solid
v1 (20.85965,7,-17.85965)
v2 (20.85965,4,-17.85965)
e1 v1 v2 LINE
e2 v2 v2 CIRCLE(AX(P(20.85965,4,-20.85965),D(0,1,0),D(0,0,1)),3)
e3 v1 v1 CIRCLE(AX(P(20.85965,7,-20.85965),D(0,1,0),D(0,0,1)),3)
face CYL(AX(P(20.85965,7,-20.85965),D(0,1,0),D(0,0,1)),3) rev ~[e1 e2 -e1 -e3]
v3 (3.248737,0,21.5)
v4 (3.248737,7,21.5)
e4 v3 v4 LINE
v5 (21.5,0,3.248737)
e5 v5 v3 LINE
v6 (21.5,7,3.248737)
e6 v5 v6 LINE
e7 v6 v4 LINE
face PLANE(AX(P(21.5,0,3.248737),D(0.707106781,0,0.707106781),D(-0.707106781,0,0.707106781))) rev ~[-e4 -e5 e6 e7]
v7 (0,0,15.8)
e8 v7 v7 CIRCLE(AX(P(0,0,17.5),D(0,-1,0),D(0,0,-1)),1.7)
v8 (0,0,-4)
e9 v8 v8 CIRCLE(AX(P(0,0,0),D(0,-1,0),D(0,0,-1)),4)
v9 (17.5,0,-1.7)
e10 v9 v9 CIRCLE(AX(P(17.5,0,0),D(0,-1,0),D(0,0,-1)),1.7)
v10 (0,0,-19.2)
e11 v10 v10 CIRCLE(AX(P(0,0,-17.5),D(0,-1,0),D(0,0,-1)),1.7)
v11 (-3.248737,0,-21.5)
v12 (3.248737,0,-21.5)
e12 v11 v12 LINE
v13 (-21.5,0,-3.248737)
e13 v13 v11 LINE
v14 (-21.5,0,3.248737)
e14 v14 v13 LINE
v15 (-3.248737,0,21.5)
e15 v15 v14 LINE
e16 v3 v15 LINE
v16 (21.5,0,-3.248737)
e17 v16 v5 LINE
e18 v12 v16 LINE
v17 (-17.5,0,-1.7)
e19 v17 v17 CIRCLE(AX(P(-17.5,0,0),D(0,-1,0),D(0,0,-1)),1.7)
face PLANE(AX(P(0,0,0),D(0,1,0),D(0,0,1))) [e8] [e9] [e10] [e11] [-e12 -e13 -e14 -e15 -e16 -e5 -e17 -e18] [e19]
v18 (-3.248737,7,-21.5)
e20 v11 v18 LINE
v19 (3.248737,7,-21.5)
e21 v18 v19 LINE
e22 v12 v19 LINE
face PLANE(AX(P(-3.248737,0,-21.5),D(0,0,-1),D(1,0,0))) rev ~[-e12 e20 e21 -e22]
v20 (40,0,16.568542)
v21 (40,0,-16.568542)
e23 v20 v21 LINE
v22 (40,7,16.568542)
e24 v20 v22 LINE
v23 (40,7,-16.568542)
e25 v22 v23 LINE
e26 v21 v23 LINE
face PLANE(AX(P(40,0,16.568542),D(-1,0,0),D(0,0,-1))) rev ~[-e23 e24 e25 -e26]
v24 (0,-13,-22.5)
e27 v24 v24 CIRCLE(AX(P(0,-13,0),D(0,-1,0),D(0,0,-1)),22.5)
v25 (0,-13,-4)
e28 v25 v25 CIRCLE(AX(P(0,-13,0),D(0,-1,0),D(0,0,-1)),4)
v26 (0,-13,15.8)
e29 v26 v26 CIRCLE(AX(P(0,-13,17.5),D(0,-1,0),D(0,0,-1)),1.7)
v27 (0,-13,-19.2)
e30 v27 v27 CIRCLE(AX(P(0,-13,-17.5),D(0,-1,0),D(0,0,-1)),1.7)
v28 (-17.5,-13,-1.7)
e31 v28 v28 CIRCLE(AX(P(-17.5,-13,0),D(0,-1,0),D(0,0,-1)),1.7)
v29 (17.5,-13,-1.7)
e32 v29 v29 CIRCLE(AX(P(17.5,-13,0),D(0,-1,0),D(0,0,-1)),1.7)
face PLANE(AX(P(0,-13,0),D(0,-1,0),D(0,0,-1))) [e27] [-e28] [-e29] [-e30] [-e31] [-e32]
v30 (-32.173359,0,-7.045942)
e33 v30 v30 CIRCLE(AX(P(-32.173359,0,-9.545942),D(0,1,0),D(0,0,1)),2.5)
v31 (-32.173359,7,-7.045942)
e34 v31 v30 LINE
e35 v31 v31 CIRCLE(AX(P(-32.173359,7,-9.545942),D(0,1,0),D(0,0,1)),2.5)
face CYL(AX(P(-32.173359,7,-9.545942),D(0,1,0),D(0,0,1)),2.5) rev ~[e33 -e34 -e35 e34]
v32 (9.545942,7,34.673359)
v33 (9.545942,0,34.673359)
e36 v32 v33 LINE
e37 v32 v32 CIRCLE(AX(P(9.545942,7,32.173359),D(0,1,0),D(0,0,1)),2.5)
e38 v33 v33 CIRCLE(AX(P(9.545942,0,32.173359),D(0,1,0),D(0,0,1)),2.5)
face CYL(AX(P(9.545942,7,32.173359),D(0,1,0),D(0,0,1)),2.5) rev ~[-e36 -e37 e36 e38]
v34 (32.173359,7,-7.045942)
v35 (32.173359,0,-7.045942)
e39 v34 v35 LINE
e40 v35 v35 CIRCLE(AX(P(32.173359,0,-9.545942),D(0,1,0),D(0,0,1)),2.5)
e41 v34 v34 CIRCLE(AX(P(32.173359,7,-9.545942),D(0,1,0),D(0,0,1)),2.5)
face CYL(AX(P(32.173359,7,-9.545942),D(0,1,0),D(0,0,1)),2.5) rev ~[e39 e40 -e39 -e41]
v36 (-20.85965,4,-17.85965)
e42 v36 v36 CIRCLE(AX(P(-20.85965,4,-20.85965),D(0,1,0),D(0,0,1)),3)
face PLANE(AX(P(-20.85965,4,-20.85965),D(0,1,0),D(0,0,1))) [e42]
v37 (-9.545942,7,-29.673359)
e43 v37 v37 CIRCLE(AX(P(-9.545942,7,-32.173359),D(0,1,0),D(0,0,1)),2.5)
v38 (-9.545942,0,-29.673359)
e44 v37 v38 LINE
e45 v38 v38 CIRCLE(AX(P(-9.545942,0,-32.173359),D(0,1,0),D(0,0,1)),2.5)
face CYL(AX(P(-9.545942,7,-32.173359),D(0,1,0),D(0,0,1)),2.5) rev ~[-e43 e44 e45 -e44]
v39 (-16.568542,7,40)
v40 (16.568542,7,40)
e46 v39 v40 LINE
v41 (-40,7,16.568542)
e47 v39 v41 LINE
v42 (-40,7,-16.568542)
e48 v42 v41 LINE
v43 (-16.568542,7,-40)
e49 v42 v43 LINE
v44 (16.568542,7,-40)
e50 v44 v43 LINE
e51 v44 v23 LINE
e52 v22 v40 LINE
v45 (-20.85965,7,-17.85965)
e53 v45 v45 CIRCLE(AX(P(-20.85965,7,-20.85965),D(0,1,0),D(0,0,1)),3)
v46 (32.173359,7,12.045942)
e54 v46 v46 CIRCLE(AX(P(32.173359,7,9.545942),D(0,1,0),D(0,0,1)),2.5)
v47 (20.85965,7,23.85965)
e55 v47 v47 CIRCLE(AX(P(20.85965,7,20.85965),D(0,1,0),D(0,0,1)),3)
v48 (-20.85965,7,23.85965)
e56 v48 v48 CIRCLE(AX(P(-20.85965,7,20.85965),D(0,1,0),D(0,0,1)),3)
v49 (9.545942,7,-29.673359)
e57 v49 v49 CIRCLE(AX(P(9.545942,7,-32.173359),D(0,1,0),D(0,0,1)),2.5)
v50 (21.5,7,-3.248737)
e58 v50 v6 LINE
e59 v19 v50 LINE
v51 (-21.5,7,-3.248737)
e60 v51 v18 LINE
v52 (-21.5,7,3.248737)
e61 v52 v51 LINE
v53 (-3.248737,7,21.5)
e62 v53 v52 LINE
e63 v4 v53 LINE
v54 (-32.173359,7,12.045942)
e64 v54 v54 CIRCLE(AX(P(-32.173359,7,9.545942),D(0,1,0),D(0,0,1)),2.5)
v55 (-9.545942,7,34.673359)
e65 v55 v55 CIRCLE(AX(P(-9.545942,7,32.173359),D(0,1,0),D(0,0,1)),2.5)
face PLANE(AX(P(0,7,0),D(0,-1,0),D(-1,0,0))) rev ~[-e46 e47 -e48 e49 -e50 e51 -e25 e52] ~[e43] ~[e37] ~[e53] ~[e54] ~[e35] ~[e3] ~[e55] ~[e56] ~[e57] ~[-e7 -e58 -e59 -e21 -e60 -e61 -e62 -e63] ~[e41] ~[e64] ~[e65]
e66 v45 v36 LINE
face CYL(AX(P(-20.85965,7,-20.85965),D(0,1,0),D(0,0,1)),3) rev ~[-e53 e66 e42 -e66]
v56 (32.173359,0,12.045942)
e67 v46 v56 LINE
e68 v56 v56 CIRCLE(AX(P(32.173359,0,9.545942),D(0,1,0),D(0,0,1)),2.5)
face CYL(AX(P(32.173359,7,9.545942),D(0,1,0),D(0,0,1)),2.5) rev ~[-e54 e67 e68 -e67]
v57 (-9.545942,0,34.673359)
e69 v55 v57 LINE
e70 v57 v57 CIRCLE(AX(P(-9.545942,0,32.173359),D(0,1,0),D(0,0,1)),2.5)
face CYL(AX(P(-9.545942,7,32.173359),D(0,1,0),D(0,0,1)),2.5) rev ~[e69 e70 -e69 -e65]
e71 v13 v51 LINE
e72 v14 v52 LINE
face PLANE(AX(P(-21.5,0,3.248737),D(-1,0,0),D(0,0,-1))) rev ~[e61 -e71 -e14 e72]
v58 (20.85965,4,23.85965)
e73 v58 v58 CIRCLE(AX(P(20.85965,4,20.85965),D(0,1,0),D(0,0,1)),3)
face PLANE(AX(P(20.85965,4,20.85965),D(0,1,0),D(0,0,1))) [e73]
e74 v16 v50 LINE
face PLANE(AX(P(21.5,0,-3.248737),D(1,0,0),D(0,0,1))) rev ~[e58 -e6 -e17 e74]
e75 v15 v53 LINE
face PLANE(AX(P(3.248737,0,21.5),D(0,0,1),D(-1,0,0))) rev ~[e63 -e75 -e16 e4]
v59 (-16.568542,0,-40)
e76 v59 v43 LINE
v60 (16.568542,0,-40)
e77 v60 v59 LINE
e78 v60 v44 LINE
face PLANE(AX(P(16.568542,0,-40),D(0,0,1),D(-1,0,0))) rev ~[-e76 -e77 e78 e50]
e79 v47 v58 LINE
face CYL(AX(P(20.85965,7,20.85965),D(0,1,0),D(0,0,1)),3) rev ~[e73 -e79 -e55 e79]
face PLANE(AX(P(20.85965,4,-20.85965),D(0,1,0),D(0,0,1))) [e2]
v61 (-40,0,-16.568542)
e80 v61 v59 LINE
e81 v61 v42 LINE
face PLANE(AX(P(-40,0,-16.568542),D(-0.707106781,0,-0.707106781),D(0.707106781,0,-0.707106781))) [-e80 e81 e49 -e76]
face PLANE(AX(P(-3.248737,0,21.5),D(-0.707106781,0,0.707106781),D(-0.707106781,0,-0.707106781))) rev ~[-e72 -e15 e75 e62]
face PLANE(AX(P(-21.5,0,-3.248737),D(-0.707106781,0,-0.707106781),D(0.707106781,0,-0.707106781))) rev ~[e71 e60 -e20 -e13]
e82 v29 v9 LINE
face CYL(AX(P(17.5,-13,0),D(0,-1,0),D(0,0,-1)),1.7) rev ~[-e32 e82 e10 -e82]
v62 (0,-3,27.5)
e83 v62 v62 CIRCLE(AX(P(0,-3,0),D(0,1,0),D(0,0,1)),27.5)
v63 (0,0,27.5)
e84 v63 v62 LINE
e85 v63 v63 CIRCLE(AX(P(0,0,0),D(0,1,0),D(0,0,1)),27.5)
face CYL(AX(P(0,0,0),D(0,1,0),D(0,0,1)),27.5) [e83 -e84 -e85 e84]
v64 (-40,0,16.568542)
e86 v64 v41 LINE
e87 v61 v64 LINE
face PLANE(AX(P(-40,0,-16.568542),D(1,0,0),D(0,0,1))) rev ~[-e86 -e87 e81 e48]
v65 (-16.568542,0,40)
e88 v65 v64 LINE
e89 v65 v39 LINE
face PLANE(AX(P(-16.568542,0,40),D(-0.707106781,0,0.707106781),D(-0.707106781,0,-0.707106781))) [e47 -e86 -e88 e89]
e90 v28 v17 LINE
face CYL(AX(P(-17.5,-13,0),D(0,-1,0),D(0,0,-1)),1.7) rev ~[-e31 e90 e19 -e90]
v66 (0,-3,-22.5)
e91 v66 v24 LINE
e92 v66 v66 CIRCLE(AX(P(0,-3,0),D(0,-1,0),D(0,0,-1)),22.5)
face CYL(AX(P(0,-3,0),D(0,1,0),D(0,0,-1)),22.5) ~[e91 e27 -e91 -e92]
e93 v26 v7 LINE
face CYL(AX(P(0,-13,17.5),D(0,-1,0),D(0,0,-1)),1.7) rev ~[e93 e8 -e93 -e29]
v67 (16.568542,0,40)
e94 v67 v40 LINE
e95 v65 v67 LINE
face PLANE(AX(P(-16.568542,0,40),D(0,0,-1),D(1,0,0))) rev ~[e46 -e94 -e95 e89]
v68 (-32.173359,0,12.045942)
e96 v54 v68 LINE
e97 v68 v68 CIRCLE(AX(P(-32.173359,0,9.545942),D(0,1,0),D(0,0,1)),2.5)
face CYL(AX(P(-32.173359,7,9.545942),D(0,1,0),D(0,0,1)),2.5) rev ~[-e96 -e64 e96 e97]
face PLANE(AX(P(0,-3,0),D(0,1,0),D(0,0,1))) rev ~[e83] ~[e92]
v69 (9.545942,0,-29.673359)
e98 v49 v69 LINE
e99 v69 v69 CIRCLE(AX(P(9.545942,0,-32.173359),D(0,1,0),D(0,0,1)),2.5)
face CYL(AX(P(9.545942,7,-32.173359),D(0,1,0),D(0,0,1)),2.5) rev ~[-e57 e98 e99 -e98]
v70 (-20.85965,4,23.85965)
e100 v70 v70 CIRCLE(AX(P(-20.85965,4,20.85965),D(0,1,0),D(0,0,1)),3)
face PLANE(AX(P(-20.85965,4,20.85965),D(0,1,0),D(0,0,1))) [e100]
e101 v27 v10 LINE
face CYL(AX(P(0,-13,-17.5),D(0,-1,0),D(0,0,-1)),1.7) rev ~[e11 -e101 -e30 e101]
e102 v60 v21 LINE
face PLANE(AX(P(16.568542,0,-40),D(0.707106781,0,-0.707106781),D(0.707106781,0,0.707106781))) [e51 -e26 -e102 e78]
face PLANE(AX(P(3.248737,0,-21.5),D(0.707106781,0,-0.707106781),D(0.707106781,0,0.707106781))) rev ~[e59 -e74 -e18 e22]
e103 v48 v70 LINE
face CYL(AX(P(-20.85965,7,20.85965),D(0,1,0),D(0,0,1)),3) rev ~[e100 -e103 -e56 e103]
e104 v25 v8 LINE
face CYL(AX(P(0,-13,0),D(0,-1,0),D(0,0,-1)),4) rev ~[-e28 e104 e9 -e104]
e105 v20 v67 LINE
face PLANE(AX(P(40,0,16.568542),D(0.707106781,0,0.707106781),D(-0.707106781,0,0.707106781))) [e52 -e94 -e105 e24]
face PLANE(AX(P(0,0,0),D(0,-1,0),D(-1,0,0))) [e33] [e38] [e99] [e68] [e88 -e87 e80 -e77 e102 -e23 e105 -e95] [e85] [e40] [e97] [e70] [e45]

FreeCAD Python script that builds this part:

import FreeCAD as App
import Part
import Sketcher
from FreeCAD import Vector
Q = App.Units.Quantity


def add_polygon(sketch, points):
    """Adds a closed chain of lines whose ends are joined by coincident constraints."""
    first, n = sketch.GeometryCount, len(points)
    for a, b in zip(points, points[1:] + points[:1]):
        sketch.addGeometry(Part.LineSegment(App.Vector(*a, 0), App.Vector(*b, 0)), False)
    for i in range(n):
        sketch.addConstraint(Sketcher.Constraint("Coincident", first + i, 2, first + (i + 1) % n, 1))

doc = App.newDocument("Part")
body = doc.addObject("PartDesign::Body", "Body")

sketch1 = doc.addObject("Sketcher::SketchObject", "Sketch")
body.addObject(sketch1)
sketch1.AttachmentSupport = (doc.XZ_Plane, [""])
sketch1.MapMode = "FlatFace"
sketch1.addGeometry(Part.Circle(Vector(0, 0, 0), Vector(0, 0, 1), 27.5), False)
sketch1.addConstraint([
    Sketcher.Constraint("Coincident", 0, 3, -1, 1),
    Sketcher.Constraint("Diameter", 0, Q("55 mm")),
])
pad1 = doc.addObject("PartDesign::Pad", "Pad")
body.addObject(pad1)
pad1.Profile = sketch1
pad1.Length = 3

sketch2 = doc.addObject("Sketcher::SketchObject", "Sketch001")
body.addObject(sketch2)
sketch2.AttachmentSupport = (doc.XZ_Plane, [""])
sketch2.MapMode = "FlatFace"
sketch2.AttachmentOffset = App.Placement(Vector(0, 0, 3), App.Rotation())
sketch2.addGeometry(Part.Circle(Vector(0, 0, 0), Vector(0, 0, 1), 22.5), False)
sketch2.addConstraint([
    Sketcher.Constraint("Coincident", 0, 3, -1, 1),
    Sketcher.Constraint("Diameter", 0, Q("45 mm")),
])
pad2 = doc.addObject("PartDesign::Pad", "Pad001")
body.addObject(pad2)
pad2.Profile = sketch2
pad2.Length = 10

sketch3 = doc.addObject("Sketcher::SketchObject", "Sketch002")
body.addObject(sketch3)
sketch3.AttachmentSupport = (doc.XZ_Plane, [""])
sketch3.MapMode = "FlatFace"
sketch3.AttachmentOffset = App.Placement(Vector(0, 0, 13), App.Rotation())
sketch3.addGeometry(Part.Circle(Vector(0, 17.5, 0), Vector(0, 0, 1), 1.7), False)
sketch3.addConstraint([
    Sketcher.Constraint("PointOnObject", 0, 3, -2),
    Sketcher.Constraint("Diameter", 0, Q("3.4 mm")),
    Sketcher.Constraint("DistanceY", -1, 1, 0, 3, Q("17.5 mm")),
])
pocket1 = doc.addObject("PartDesign::Pocket", "Pocket")
body.addObject(pocket1)
pocket1.Profile = sketch3
pocket1.Type = "UpToFirst"

sketch4 = doc.addObject("Sketcher::SketchObject", "Sketch003")
body.addObject(sketch4)
sketch4.AttachmentSupport = (doc.XZ_Plane, [""])
sketch4.MapMode = "FlatFace"
sketch4.AttachmentOffset = App.Placement(Vector(0, 0, 13), App.Rotation())
sketch4.addGeometry(Part.Circle(Vector(17.5, 0, 0), Vector(0, 0, 1), 1.7), False)
sketch4.addConstraint([
    Sketcher.Constraint("PointOnObject", 0, 3, -1),
    Sketcher.Constraint("Diameter", 0, Q("3.4 mm")),
    Sketcher.Constraint("DistanceX", -1, 1, 0, 3, Q("17.5 mm")),
])
pocket2 = doc.addObject("PartDesign::Pocket", "Pocket001")
body.addObject(pocket2)
pocket2.Profile = sketch4
pocket2.Type = "UpToFirst"

sketch5 = doc.addObject("Sketcher::SketchObject", "Sketch004")
body.addObject(sketch5)
sketch5.AttachmentSupport = (doc.XZ_Plane, [""])
sketch5.MapMode = "FlatFace"
sketch5.AttachmentOffset = App.Placement(Vector(0, 0, 13), App.Rotation())
sketch5.addGeometry(Part.Circle(Vector(0, -17.5, 0), Vector(0, 0, 1), 1.7), False)
sketch5.addConstraint([
    Sketcher.Constraint("PointOnObject", 0, 3, -2),
    Sketcher.Constraint("Diameter", 0, Q("3.4 mm")),
    Sketcher.Constraint("DistanceY", 0, 3, -1, 1, Q("17.5 mm")),
])
pocket3 = doc.addObject("PartDesign::Pocket", "Pocket002")
body.addObject(pocket3)
pocket3.Profile = sketch5
pocket3.Type = "UpToFirst"

sketch6 = doc.addObject("Sketcher::SketchObject", "Sketch005")
body.addObject(sketch6)
sketch6.AttachmentSupport = (doc.XZ_Plane, [""])
sketch6.MapMode = "FlatFace"
sketch6.AttachmentOffset = App.Placement(Vector(0, 0, 13), App.Rotation())
sketch6.addGeometry(Part.Circle(Vector(-17.5, 0, 0), Vector(0, 0, 1), 1.7), False)
sketch6.addConstraint([
    Sketcher.Constraint("PointOnObject", 0, 3, -1),
    Sketcher.Constraint("Diameter", 0, Q("3.4 mm")),
    Sketcher.Constraint("DistanceX", 0, 3, -1, 1, Q("17.5 mm")),
])
pocket4 = doc.addObject("PartDesign::Pocket", "Pocket003")
body.addObject(pocket4)
pocket4.Profile = sketch6
pocket4.Type = "UpToFirst"

sketch7 = doc.addObject("Sketcher::SketchObject", "Sketch006")
body.addObject(sketch7)
sketch7.AttachmentSupport = (doc.XZ_Plane, [""])
sketch7.MapMode = "FlatFace"
sketch7.AttachmentOffset = App.Placement(Vector(0, 0, 13), App.Rotation())
sketch7.addGeometry(Part.Circle(Vector(0, 0, 0), Vector(0, 0, 1), 4), False)
sketch7.addConstraint([
    Sketcher.Constraint("Coincident", 0, 3, -1, 1),
    Sketcher.Constraint("Diameter", 0, Q("8 mm")),
])
pocket5 = doc.addObject("PartDesign::Pocket", "Pocket004")
body.addObject(pocket5)
pocket5.Profile = sketch7
pocket5.Type = "UpToFirst"

sketch8 = doc.addObject("Sketcher::SketchObject", "Sketch007")
body.addObject(sketch8)
sketch8.AttachmentSupport = (doc.XZ_Plane, [""])
sketch8.MapMode = "FlatFace"
add_polygon(sketch8, [(16.568542, -40), (-16.568542, -40), (-40, -16.568542), (-40, 16.568542), (-16.568542, 40), (16.568542, 40), (40, 16.568542), (40, -16.568542)])
add_polygon(sketch8, [(3.248737, -21.5), (21.5, -3.248737), (21.5, 3.248737), (3.248737, 21.5), (-3.248737, 21.5), (-21.5, 3.248737), (-21.5, -3.248737), (-3.248737, -21.5)])
sketch8.addConstraint([
    Sketcher.Constraint("Horizontal", 0),
    Sketcher.Constraint("Vertical", 2),
    Sketcher.Constraint("Horizontal", 4),
    Sketcher.Constraint("Vertical", 6),
    Sketcher.Constraint("Vertical", 9),
    Sketcher.Constraint("Horizontal", 11),
    Sketcher.Constraint("Vertical", 13),
    Sketcher.Constraint("Horizontal", 15),
    Sketcher.Constraint("Symmetric", 0, 2, 4, 2, -1, 1),
    Sketcher.Constraint("Symmetric", 1, 2, 5, 2, -1, 1),
    Sketcher.Constraint("Symmetric", 8, 2, 12, 2, -1, 1),
    Sketcher.Constraint("Symmetric", 10, 2, 14, 2, -1, 1),
    Sketcher.Constraint("Perpendicular", 1, 3),
    Sketcher.Constraint("Perpendicular", 5, 7),
    Sketcher.Constraint("Parallel", 7, 8),
    Sketcher.Constraint("Perpendicular", 8, 10),
    Sketcher.Constraint("Perpendicular", 10, 12),
    Sketcher.Constraint("Perpendicular", 12, 14),
    Sketcher.Constraint("Horizontal", 2, 2, 5, 2),
    Sketcher.Constraint("Horizontal", 1, 2, 6, 2),
    Sketcher.Constraint("Horizontal", 9, 2, 12, 2),
    Sketcher.Constraint("Vertical", 0, 2, 3, 2),
    Sketcher.Constraint("Equal", 4, 2),
    Sketcher.Constraint("Equal", 15, 9),
    Sketcher.Constraint("DistanceY", 0, 2, -1, 1, Q("40 mm")),
    Sketcher.Constraint("DistanceX", -1, 1, 8, 2, Q("21.5 mm")),
    Sketcher.Constraint("DistanceX", 0, 2, 0, 1, Q("33.137085 mm")),
    Sketcher.Constraint("DistanceX", 11, 2, 11, 1, Q("6.497475 mm")),
])
pad3 = doc.addObject("PartDesign::Pad", "Pad002")
body.addObject(pad3)
pad3.Profile = sketch8
pad3.Length = 7
pad3.Reversed = True

sketch9 = doc.addObject("Sketcher::SketchObject", "Sketch008")
body.addObject(sketch9)
sketch9.AttachmentSupport = (doc.XZ_Plane, [""])
sketch9.MapMode = "FlatFace"
sketch9.AttachmentOffset = App.Placement(Vector(0, 0, -7), App.Rotation())
sketch9.addGeometry([
    Part.Circle(Vector(20.85965, -20.85965, 0), Vector(0, 0, 1), 3),
    Part.Circle(Vector(20.85965, 20.85965, 0), Vector(0, 0, 1), 3),
    Part.Circle(Vector(-20.85965, 20.85965, 0), Vector(0, 0, 1), 3),
    Part.Circle(Vector(-20.85965, -20.85965, 0), Vector(0, 0, 1), 3),
], False)
sketch9.addConstraint([
    Sketcher.Constraint("Equal", 0, 1),
    Sketcher.Constraint("Equal", 1, 2),
    Sketcher.Constraint("Equal", 2, 3),
    Sketcher.Constraint("Symmetric", 0, 3, 2, 3, -1, 1),
    Sketcher.Constraint("Symmetric", 1, 3, 3, 3, -1, 1),
    Sketcher.Constraint("Symmetric", 1, 3, 2, 3, -2),
    Sketcher.Constraint("Diameter", 0, Q("6 mm")),
    Sketcher.Constraint("DistanceY", 0, 3, 1, 3, Q("41.7193 mm")),
    Sketcher.Constraint("DistanceX", 2, 3, 1, 3, Q("41.7193 mm")),
])
pocket6 = doc.addObject("PartDesign::Pocket", "Pocket005")
body.addObject(pocket6)
pocket6.Profile = sketch9
pocket6.Length = 3
pocket6.Reversed = True

sketch10 = doc.addObject("Sketcher::SketchObject", "Sketch009")
body.addObject(sketch10)
sketch10.AttachmentSupport = (doc.XZ_Plane, [""])
sketch10.MapMode = "FlatFace"
sketch10.AttachmentOffset = App.Placement(Vector(0, 0, -7), App.Rotation())
sketch10.addGeometry(Part.Circle(Vector(9.545942, -32.173359, 0), Vector(0, 0, 1), 2.5), False)
sketch10.addConstraint([
    Sketcher.Constraint("Diameter", 0, Q("5 mm")),
    Sketcher.Constraint("DistanceX", -1, 1, 0, 3, Q("9.545942 mm")),
    Sketcher.Constraint("DistanceY", 0, 3, -1, 1, Q("32.173359 mm")),
])
pocket7 = doc.addObject("PartDesign::Pocket", "Pocket006")
body.addObject(pocket7)
pocket7.Profile = sketch10
pocket7.Type = "UpToFirst"
pocket7.Reversed = True

sketch11 = doc.addObject("Sketcher::SketchObject", "Sketch010")
body.addObject(sketch11)
sketch11.AttachmentSupport = (doc.XZ_Plane, [""])
sketch11.MapMode = "FlatFace"
sketch11.AttachmentOffset = App.Placement(Vector(0, 0, -7), App.Rotation())
sketch11.addGeometry(Part.Circle(Vector(32.173359, -9.545942, 0), Vector(0, 0, 1), 2.5), False)
sketch11.addConstraint([
    Sketcher.Constraint("Diameter", 0, Q("5 mm")),
    Sketcher.Constraint("DistanceX", -1, 1, 0, 3, Q("32.173359 mm")),
    Sketcher.Constraint("DistanceY", 0, 3, -1, 1, Q("9.545942 mm")),
])
pocket8 = doc.addObject("PartDesign::Pocket", "Pocket007")
body.addObject(pocket8)
pocket8.Profile = sketch11
pocket8.Type = "UpToFirst"
pocket8.Reversed = True

sketch12 = doc.addObject("Sketcher::SketchObject", "Sketch011")
body.addObject(sketch12)
sketch12.AttachmentSupport = (doc.XZ_Plane, [""])
sketch12.MapMode = "FlatFace"
sketch12.AttachmentOffset = App.Placement(Vector(0, 0, -7), App.Rotation())
sketch12.addGeometry(Part.Circle(Vector(32.173359, 9.545942, 0), Vector(0, 0, 1), 2.5), False)
sketch12.addConstraint([
    Sketcher.Constraint("Diameter", 0, Q("5 mm")),
    Sketcher.Constraint("DistanceX", -1, 1, 0, 3, Q("32.173359 mm")),
    Sketcher.Constraint("DistanceY", -1, 1, 0, 3, Q("9.545942 mm")),
])
pocket9 = doc.addObject("PartDesign::Pocket", "Pocket008")
body.addObject(pocket9)
pocket9.Profile = sketch12
pocket9.Type = "UpToFirst"
pocket9.Reversed = True

sketch13 = doc.addObject("Sketcher::SketchObject", "Sketch012")
body.addObject(sketch13)
sketch13.AttachmentSupport = (doc.XZ_Plane, [""])
sketch13.MapMode = "FlatFace"
sketch13.AttachmentOffset = App.Placement(Vector(0, 0, -7), App.Rotation())
sketch13.addGeometry(Part.Circle(Vector(9.545942, 32.173359, 0), Vector(0, 0, 1), 2.5), False)
sketch13.addConstraint([
    Sketcher.Constraint("Diameter", 0, Q("5 mm")),
    Sketcher.Constraint("DistanceX", -1, 1, 0, 3, Q("9.545942 mm")),
    Sketcher.Constraint("DistanceY", -1, 1, 0, 3, Q("32.173359 mm")),
])
pocket10 = doc.addObject("PartDesign::Pocket", "Pocket009")
body.addObject(pocket10)
pocket10.Profile = sketch13
pocket10.Type = "UpToFirst"
pocket10.Reversed = True

sketch14 = doc.addObject("Sketcher::SketchObject", "Sketch013")
body.addObject(sketch14)
sketch14.AttachmentSupport = (doc.XZ_Plane, [""])
sketch14.MapMode = "FlatFace"
sketch14.AttachmentOffset = App.Placement(Vector(0, 0, -7), App.Rotation())
sketch14.addGeometry(Part.Circle(Vector(-9.545942, 32.173359, 0), Vector(0, 0, 1), 2.5), False)
sketch14.addConstraint([
    Sketcher.Constraint("Diameter", 0, Q("5 mm")),
    Sketcher.Constraint("DistanceX", 0, 3, -1, 1, Q("9.545942 mm")),
    Sketcher.Constraint("DistanceY", -1, 1, 0, 3, Q("32.173359 mm")),
])
pocket11 = doc.addObject("PartDesign::Pocket", "Pocket010")
body.addObject(pocket11)
pocket11.Profile = sketch14
pocket11.Type = "UpToFirst"
pocket11.Reversed = True

sketch15 = doc.addObject("Sketcher::SketchObject", "Sketch014")
body.addObject(sketch15)
sketch15.AttachmentSupport = (doc.XZ_Plane, [""])
sketch15.MapMode = "FlatFace"
sketch15.AttachmentOffset = App.Placement(Vector(0, 0, -7), App.Rotation())
sketch15.addGeometry(Part.Circle(Vector(-32.173359, 9.545942, 0), Vector(0, 0, 1), 2.5), False)
sketch15.addConstraint([
    Sketcher.Constraint("Diameter", 0, Q("5 mm")),
    Sketcher.Constraint("DistanceX", 0, 3, -1, 1, Q("32.173359 mm")),
    Sketcher.Constraint("DistanceY", -1, 1, 0, 3, Q("9.545942 mm")),
])
pocket12 = doc.addObject("PartDesign::Pocket", "Pocket011")
body.addObject(pocket12)
pocket12.Profile = sketch15
pocket12.Type = "UpToFirst"
pocket12.Reversed = True

sketch16 = doc.addObject("Sketcher::SketchObject", "Sketch015")
body.addObject(sketch16)
sketch16.AttachmentSupport = (doc.XZ_Plane, [""])
sketch16.MapMode = "FlatFace"
sketch16.AttachmentOffset = App.Placement(Vector(0, 0, -7), App.Rotation())
sketch16.addGeometry(Part.Circle(Vector(-32.173359, -9.545942, 0), Vector(0, 0, 1), 2.5), False)
sketch16.addConstraint([
    Sketcher.Constraint("Diameter", 0, Q("5 mm")),
    Sketcher.Constraint("DistanceX", 0, 3, -1, 1, Q("32.173359 mm")),
    Sketcher.Constraint("DistanceY", 0, 3, -1, 1, Q("9.545942 mm")),
])
pocket13 = doc.addObject("PartDesign::Pocket", "Pocket012")
body.addObject(pocket13)
pocket13.Profile = sketch16
pocket13.Type = "UpToFirst"
pocket13.Reversed = True

sketch17 = doc.addObject("Sketcher::SketchObject", "Sketch016")
body.addObject(sketch17)
sketch17.AttachmentSupport = (doc.XZ_Plane, [""])
sketch17.MapMode = "FlatFace"
sketch17.AttachmentOffset = App.Placement(Vector(0, 0, -7), App.Rotation())
sketch17.addGeometry(Part.Circle(Vector(-9.545942, -32.173359, 0), Vector(0, 0, 1), 2.5), False)
sketch17.addConstraint([
    Sketcher.Constraint("Diameter", 0, Q("5 mm")),
    Sketcher.Constraint("DistanceX", 0, 3, -1, 1, Q("9.545942 mm")),
    Sketcher.Constraint("DistanceY", 0, 3, -1, 1, Q("32.173359 mm")),
])
pocket14 = doc.addObject("PartDesign::Pocket", "Pocket013")
body.addObject(pocket14)
pocket14.Profile = sketch17
pocket14.Type = "UpToFirst"
pocket14.Reversed = True

doc.recompute()
